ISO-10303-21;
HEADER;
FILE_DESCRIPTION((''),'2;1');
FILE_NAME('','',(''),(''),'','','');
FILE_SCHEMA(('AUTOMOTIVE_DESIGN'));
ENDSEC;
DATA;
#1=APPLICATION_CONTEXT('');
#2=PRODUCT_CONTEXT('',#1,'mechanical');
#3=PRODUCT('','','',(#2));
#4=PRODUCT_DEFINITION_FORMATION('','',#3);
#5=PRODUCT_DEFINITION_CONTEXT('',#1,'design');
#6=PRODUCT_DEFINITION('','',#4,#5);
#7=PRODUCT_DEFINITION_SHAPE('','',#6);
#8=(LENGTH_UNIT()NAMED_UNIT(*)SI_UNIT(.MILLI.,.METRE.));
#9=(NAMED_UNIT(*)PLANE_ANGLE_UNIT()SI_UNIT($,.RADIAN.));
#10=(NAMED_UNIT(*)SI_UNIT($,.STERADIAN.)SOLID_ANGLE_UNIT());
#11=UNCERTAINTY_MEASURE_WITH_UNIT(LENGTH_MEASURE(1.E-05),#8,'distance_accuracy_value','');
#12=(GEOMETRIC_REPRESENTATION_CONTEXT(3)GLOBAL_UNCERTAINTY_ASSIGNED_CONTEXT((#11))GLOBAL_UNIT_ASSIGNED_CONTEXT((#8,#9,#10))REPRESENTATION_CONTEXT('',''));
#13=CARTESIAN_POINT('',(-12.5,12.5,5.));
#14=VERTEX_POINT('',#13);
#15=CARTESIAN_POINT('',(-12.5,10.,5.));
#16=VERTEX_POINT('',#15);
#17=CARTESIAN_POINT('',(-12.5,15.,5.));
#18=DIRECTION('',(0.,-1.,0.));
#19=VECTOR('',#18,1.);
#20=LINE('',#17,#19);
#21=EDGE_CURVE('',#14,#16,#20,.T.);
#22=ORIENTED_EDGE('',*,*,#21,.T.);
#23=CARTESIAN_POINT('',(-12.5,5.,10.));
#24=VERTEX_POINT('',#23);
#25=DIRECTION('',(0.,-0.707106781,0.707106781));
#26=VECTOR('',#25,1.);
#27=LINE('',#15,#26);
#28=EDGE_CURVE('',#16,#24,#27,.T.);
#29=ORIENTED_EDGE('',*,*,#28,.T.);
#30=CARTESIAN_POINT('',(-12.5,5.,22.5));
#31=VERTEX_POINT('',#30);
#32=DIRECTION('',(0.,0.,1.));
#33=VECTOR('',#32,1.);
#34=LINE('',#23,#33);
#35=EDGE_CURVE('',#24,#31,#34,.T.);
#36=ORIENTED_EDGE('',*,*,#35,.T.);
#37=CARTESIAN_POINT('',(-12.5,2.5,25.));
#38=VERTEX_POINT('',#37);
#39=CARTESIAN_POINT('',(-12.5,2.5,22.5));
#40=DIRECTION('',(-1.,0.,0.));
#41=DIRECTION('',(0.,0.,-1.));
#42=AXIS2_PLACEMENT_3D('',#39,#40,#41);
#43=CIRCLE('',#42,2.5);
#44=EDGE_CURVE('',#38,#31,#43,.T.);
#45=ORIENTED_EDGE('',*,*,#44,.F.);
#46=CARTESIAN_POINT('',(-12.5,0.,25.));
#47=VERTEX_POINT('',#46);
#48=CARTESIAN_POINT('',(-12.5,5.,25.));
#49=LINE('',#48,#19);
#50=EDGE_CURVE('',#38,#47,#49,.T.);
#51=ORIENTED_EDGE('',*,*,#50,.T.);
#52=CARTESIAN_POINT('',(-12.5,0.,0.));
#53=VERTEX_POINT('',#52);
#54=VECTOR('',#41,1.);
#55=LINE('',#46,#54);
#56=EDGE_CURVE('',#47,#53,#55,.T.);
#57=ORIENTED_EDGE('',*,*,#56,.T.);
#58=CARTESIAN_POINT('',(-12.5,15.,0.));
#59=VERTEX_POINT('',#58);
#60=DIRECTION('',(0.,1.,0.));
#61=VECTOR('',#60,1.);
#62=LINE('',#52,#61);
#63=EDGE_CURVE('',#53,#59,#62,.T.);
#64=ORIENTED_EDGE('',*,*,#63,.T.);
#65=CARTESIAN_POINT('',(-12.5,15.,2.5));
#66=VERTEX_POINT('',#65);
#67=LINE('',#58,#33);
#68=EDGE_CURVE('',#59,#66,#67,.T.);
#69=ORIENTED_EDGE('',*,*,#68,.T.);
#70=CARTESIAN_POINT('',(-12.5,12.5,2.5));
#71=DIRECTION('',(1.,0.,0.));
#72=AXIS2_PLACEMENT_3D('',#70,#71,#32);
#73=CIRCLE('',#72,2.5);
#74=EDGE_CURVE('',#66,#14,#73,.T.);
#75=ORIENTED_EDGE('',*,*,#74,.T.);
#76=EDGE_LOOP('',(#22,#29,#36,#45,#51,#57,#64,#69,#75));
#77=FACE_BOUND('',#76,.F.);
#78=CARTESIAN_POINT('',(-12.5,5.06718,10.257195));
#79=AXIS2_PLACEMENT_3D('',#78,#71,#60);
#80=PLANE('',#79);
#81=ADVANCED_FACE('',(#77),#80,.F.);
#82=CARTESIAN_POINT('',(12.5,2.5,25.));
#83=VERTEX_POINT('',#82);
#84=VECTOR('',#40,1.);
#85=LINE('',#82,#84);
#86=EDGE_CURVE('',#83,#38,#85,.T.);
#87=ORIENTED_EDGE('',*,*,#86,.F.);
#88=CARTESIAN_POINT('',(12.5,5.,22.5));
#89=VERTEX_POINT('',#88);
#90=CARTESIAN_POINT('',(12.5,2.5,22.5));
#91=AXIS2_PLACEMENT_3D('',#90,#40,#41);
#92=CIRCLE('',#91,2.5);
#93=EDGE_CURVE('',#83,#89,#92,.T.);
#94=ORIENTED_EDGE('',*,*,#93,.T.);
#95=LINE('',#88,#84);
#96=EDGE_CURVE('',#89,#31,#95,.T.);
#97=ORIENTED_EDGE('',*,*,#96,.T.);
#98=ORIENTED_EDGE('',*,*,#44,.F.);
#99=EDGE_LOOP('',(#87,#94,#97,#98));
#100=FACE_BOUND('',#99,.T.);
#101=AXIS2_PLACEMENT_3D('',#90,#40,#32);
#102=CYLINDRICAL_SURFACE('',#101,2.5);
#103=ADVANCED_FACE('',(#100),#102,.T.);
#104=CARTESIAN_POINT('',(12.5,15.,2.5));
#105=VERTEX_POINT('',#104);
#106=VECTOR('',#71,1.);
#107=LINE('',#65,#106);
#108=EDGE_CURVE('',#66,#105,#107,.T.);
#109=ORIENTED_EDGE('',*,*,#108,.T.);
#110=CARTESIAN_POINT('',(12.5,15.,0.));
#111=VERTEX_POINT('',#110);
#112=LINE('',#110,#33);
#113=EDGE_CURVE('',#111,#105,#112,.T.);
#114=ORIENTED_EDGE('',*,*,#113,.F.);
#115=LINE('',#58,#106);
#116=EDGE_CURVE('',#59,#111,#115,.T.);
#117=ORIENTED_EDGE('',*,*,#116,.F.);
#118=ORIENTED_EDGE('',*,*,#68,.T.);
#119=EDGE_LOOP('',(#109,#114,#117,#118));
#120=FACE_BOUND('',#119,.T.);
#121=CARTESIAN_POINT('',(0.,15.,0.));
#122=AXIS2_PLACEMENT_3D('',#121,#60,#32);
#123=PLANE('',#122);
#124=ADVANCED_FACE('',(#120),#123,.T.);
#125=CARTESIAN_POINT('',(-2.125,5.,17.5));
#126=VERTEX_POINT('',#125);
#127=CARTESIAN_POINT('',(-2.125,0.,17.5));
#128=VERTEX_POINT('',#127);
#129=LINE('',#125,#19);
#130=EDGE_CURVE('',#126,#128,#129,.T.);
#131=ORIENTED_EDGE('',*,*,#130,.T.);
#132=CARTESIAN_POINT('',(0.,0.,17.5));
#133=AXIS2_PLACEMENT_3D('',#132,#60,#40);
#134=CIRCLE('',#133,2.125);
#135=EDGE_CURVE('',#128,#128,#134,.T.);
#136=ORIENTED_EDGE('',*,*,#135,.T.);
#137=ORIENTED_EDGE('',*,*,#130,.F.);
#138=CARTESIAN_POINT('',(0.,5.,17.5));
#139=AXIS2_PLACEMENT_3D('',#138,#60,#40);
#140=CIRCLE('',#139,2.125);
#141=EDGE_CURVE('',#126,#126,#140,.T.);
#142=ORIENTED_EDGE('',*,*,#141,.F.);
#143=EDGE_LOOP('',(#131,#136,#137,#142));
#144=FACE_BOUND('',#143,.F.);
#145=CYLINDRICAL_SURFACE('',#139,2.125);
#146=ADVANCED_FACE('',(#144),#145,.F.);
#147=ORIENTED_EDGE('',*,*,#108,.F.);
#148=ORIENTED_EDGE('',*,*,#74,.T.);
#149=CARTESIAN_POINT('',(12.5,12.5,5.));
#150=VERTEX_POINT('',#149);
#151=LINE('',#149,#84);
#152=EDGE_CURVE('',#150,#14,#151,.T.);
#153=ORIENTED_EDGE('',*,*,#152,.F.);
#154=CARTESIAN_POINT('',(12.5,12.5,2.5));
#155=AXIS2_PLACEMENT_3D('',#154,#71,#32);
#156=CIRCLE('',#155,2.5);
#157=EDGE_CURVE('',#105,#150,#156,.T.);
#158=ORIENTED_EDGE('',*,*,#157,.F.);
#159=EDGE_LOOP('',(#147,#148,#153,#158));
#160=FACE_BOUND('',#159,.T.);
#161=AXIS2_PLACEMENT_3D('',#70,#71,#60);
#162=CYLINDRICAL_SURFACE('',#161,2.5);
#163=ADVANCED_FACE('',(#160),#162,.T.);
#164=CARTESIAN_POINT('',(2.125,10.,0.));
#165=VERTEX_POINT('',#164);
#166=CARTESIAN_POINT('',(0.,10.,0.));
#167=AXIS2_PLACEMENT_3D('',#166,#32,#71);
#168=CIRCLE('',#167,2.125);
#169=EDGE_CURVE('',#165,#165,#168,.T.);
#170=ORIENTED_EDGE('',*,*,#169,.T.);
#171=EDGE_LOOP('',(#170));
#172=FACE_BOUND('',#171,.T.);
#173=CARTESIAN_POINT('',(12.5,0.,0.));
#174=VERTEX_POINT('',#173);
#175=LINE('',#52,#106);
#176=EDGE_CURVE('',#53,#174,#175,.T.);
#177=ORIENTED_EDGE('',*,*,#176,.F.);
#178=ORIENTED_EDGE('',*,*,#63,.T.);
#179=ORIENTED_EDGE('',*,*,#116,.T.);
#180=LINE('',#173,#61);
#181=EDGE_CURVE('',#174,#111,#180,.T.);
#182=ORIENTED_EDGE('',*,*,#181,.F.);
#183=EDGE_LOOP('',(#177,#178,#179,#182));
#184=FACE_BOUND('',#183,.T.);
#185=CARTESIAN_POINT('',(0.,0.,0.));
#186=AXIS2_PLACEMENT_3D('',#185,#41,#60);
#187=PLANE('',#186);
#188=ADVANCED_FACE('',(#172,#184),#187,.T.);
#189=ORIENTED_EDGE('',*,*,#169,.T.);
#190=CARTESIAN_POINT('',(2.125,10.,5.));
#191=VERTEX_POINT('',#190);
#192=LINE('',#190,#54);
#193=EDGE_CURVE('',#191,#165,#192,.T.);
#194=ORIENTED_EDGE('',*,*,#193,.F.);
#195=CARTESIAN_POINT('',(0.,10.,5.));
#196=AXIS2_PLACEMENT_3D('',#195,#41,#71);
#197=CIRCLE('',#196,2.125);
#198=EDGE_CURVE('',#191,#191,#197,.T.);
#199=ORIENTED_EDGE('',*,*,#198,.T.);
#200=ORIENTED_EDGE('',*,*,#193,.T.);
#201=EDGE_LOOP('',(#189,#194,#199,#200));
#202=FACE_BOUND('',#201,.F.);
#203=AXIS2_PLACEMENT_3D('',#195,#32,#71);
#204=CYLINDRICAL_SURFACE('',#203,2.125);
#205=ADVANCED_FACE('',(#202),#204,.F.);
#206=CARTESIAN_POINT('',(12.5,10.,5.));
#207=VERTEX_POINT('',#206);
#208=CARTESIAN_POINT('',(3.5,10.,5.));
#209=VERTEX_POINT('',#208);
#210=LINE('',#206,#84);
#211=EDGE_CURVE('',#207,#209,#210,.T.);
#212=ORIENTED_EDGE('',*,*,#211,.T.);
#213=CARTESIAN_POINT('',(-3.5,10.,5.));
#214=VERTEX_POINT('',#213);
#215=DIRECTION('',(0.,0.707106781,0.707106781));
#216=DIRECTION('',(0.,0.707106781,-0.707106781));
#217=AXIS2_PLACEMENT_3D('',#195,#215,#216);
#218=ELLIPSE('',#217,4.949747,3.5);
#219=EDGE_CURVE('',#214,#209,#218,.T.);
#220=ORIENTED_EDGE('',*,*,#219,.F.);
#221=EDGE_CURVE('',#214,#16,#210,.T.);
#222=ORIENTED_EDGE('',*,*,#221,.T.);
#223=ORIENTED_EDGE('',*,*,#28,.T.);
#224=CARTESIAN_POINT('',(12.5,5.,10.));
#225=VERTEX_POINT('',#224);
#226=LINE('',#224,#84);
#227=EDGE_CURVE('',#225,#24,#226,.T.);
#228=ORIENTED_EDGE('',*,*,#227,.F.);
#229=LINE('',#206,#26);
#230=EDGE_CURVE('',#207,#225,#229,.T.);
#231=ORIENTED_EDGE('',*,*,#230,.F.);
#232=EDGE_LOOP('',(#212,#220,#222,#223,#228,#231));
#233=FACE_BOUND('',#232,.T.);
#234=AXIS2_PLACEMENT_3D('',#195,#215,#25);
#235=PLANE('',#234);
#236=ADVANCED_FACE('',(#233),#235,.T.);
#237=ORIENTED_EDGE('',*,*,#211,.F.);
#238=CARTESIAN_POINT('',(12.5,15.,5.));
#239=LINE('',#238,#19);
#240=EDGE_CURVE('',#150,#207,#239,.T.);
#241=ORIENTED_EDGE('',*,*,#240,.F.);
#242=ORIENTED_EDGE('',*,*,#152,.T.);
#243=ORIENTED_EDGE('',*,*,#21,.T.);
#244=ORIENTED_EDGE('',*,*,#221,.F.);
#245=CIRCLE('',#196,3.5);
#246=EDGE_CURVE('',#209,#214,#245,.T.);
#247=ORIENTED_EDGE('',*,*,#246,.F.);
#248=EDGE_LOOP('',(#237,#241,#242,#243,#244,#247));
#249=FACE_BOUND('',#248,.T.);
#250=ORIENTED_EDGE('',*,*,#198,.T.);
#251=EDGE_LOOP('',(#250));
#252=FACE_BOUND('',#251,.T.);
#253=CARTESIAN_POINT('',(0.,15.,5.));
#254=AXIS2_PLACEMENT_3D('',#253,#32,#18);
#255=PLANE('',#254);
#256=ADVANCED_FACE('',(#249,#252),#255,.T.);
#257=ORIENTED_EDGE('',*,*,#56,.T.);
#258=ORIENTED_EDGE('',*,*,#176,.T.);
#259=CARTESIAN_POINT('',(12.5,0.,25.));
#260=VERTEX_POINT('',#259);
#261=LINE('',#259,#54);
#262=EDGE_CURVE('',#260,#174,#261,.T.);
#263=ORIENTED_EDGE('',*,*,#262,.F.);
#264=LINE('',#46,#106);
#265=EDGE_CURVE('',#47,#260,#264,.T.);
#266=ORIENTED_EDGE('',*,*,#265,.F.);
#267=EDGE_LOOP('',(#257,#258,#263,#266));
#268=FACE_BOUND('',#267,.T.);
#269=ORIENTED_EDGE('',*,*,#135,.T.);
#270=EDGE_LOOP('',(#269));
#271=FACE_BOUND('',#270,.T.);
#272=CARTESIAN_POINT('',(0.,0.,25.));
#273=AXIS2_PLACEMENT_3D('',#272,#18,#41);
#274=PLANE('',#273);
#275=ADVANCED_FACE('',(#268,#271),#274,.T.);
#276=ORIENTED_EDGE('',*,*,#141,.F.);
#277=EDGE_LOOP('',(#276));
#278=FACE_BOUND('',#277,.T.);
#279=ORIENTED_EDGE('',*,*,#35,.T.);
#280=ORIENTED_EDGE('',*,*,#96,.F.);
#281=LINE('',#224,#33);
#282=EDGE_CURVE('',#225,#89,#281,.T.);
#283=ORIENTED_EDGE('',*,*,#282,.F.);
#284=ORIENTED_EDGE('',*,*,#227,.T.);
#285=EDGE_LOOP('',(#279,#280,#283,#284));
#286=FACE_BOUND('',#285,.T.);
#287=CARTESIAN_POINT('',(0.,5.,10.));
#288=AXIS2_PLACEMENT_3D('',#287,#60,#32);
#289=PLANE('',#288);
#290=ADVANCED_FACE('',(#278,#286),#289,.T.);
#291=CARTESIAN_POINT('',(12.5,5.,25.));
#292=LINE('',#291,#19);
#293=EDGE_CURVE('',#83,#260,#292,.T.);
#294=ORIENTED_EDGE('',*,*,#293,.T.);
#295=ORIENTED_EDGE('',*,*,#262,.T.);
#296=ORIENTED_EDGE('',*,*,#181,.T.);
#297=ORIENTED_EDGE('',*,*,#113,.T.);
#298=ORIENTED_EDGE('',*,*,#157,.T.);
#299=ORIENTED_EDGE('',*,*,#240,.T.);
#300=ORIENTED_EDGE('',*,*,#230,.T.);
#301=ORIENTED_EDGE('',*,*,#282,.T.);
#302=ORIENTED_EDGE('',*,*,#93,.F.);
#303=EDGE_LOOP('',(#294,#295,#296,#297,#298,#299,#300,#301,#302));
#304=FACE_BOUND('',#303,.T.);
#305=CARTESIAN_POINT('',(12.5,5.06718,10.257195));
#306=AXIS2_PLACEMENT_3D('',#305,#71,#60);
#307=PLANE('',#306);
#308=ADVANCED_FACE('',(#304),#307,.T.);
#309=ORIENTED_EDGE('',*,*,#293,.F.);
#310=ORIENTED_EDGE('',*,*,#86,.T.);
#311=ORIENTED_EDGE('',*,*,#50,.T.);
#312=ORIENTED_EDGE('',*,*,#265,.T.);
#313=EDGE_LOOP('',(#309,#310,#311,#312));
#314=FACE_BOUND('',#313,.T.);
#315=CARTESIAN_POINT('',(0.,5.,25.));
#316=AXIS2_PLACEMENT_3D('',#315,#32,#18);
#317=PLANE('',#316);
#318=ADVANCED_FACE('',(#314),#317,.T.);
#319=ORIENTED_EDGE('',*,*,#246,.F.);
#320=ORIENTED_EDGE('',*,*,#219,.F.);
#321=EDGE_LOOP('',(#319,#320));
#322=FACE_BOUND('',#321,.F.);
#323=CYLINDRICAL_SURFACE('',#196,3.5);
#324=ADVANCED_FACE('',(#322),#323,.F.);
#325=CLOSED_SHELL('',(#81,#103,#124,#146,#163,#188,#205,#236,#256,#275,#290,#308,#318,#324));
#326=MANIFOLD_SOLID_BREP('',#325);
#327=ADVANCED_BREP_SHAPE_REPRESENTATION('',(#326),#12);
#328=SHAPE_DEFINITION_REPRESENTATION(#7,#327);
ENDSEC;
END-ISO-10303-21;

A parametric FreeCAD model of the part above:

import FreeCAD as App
import Part
import Sketcher

V = App.Vector
Q = App.Units.Quantity


def edges_at(feature, points):
    """Names of the edges that pass closest to the given points."""
    edges = feature.Shape.Edges
    near = lambda p: min(range(len(edges)), key=lambda i: edges[i].distToShape(Part.Vertex(*p))[0])
    return sorted({f"Edge{near(p) + 1}" for p in points})

doc = App.newDocument("Part")
body = doc.addObject("PartDesign::Body", "Body")

# Sketch on YZ plane
sketch1 = doc.addObject("Sketcher::SketchObject", "Sketch")
body.addObject(sketch1)
sketch1.AttachmentSupport = (doc.YZ_Plane, [""])
sketch1.MapMode = "FlatFace"
sketch1.addGeometry([
    Part.LineSegment(V(5, 25, 0), V(0, 25, 0)),  # 0
    Part.LineSegment(V(0, 25, 0), V(0, 0, 0)),  # 1
    Part.LineSegment(V(0, 0, 0), V(15, 0, 0)),  # 2
    Part.LineSegment(V(15, 0, 0), V(15, 5, 0)),  # 3
    Part.LineSegment(V(15, 5, 0), V(10, 5, 0)),  # 4
    Part.LineSegment(V(10, 5, 0), V(5, 10, 0)),  # 5
    Part.LineSegment(V(5, 10, 0), V(5, 25, 0)),  # 6
], False)
sketch1.addConstraint([
    Sketcher.Constraint("Coincident", 0, 2, 1, 1),
    Sketcher.Constraint("Coincident", 1, 2, 2, 1),
    Sketcher.Constraint("Coincident", 2, 2, 3, 1),
    Sketcher.Constraint("Coincident", 3, 2, 4, 1),
    Sketcher.Constraint("Coincident", 4, 2, 5, 1),
    Sketcher.Constraint("Coincident", 5, 2, 6, 1),
    Sketcher.Constraint("Coincident", 6, 2, 0, 1),
    Sketcher.Constraint("Horizontal", 0),
    Sketcher.Constraint("Vertical", 1),
    Sketcher.Constraint("Horizontal", 2),
    Sketcher.Constraint("Vertical", 3),
    Sketcher.Constraint("Horizontal", 4),
    Sketcher.Constraint("Vertical", 6),
    Sketcher.Constraint("Coincident", 1, 2, -1, 1),
    Sketcher.Constraint("Equal", 0, 4),
    Sketcher.Constraint("Equal", 4, 3),
    Sketcher.Constraint("Equal", 2, 6),
    Sketcher.Constraint("DistanceX", 0, 2, 0, 1, Q("5 mm")),
    Sketcher.Constraint("DistanceX", 2, 1, 2, 2, Q("15 mm")),
    Sketcher.Constraint("DistanceY", 1, 2, 1, 1, Q("25 mm")),
])
pad1 = doc.addObject("PartDesign::Pad", "Pad")
body.addObject(pad1)
pad1.Profile = sketch1
pad1.Length = 25
pad1.Midplane = True

# Sketch on XY plane
sketch2 = doc.addObject("Sketcher::SketchObject", "Sketch001")
body.addObject(sketch2)
sketch2.AttachmentSupport = (doc.XY_Plane, [""])
sketch2.MapMode = "FlatFace"
sketch2.AttachmentOffset = App.Placement(V(0, 0, 5), App.Rotation())
sketch2.addGeometry(Part.Circle(V(0, 10, 0), V(0, 0, 1), 2.1), False)
sketch2.addConstraint([
    Sketcher.Constraint("PointOnObject", 0, 3, -2),
    Sketcher.Constraint("Diameter", 0, Q("4.25 mm")),
    Sketcher.Constraint("DistanceY", -1, 1, 0, 3, Q("10 mm")),
])
pocket1 = doc.addObject("PartDesign::Pocket", "Pocket")
body.addObject(pocket1)
pocket1.Profile = sketch2
pocket1.Type = "ThroughAll"

# Sketch on XZ plane
sketch3 = doc.addObject("Sketcher::SketchObject", "Sketch002")
body.addObject(sketch3)
sketch3.AttachmentSupport = (doc.XZ_Plane, [""])
sketch3.MapMode = "FlatFace"
sketch3.AttachmentOffset = App.Placement(V(0, 0, -5), App.Rotation())
sketch3.addGeometry(Part.Circle(V(0, 17.5, 0), V(0, 0, 1), 2.1), False)
sketch3.addConstraint([
    Sketcher.Constraint("PointOnObject", 0, 3, -2),
    Sketcher.Constraint("Diameter", 0, Q("4.25 mm")),
    Sketcher.Constraint("DistanceY", -1, 1, 0, 3, Q("17.5 mm")),
])
pocket2 = doc.addObject("PartDesign::Pocket", "Pocket001")
body.addObject(pocket2)
pocket2.Profile = sketch3
pocket2.Type = "ThroughAll"
pocket2.Reversed = True
doc.recompute()

fillet = doc.addObject("PartDesign::Fillet", "Fillet")
body.addObject(fillet)
fillet.Base = (pocket2, edges_at(pocket2, [(0, 15, 5), (0, 5, 25)]))
fillet.Radius = 2.5

# Sketch on XY plane
sketch4 = doc.addObject("Sketcher::SketchObject", "Sketch003")
body.addObject(sketch4)
sketch4.AttachmentSupport = (doc.XY_Plane, [""])
sketch4.MapMode = "FlatFace"
sketch4.AttachmentOffset = App.Placement(V(0, 0, 5), App.Rotation())
sketch4.addGeometry(Part.Circle(V(0, 10, 0), V(0, 0, 1), 3.5), False)
sketch4.addConstraint([
    Sketcher.Constraint("PointOnObject", 0, 3, -2),
    Sketcher.Constraint("Diameter", 0, Q("7 mm")),
    Sketcher.Constraint("DistanceY", -1, 1, 0, 3, Q("10 mm")),
])
pocket3 = doc.addObject("PartDesign::Pocket", "Pocket002")
body.addObject(pocket3)
pocket3.Profile = sketch4
pocket3.Type = "ThroughAll"
pocket3.Reversed = True

doc.recompute()
